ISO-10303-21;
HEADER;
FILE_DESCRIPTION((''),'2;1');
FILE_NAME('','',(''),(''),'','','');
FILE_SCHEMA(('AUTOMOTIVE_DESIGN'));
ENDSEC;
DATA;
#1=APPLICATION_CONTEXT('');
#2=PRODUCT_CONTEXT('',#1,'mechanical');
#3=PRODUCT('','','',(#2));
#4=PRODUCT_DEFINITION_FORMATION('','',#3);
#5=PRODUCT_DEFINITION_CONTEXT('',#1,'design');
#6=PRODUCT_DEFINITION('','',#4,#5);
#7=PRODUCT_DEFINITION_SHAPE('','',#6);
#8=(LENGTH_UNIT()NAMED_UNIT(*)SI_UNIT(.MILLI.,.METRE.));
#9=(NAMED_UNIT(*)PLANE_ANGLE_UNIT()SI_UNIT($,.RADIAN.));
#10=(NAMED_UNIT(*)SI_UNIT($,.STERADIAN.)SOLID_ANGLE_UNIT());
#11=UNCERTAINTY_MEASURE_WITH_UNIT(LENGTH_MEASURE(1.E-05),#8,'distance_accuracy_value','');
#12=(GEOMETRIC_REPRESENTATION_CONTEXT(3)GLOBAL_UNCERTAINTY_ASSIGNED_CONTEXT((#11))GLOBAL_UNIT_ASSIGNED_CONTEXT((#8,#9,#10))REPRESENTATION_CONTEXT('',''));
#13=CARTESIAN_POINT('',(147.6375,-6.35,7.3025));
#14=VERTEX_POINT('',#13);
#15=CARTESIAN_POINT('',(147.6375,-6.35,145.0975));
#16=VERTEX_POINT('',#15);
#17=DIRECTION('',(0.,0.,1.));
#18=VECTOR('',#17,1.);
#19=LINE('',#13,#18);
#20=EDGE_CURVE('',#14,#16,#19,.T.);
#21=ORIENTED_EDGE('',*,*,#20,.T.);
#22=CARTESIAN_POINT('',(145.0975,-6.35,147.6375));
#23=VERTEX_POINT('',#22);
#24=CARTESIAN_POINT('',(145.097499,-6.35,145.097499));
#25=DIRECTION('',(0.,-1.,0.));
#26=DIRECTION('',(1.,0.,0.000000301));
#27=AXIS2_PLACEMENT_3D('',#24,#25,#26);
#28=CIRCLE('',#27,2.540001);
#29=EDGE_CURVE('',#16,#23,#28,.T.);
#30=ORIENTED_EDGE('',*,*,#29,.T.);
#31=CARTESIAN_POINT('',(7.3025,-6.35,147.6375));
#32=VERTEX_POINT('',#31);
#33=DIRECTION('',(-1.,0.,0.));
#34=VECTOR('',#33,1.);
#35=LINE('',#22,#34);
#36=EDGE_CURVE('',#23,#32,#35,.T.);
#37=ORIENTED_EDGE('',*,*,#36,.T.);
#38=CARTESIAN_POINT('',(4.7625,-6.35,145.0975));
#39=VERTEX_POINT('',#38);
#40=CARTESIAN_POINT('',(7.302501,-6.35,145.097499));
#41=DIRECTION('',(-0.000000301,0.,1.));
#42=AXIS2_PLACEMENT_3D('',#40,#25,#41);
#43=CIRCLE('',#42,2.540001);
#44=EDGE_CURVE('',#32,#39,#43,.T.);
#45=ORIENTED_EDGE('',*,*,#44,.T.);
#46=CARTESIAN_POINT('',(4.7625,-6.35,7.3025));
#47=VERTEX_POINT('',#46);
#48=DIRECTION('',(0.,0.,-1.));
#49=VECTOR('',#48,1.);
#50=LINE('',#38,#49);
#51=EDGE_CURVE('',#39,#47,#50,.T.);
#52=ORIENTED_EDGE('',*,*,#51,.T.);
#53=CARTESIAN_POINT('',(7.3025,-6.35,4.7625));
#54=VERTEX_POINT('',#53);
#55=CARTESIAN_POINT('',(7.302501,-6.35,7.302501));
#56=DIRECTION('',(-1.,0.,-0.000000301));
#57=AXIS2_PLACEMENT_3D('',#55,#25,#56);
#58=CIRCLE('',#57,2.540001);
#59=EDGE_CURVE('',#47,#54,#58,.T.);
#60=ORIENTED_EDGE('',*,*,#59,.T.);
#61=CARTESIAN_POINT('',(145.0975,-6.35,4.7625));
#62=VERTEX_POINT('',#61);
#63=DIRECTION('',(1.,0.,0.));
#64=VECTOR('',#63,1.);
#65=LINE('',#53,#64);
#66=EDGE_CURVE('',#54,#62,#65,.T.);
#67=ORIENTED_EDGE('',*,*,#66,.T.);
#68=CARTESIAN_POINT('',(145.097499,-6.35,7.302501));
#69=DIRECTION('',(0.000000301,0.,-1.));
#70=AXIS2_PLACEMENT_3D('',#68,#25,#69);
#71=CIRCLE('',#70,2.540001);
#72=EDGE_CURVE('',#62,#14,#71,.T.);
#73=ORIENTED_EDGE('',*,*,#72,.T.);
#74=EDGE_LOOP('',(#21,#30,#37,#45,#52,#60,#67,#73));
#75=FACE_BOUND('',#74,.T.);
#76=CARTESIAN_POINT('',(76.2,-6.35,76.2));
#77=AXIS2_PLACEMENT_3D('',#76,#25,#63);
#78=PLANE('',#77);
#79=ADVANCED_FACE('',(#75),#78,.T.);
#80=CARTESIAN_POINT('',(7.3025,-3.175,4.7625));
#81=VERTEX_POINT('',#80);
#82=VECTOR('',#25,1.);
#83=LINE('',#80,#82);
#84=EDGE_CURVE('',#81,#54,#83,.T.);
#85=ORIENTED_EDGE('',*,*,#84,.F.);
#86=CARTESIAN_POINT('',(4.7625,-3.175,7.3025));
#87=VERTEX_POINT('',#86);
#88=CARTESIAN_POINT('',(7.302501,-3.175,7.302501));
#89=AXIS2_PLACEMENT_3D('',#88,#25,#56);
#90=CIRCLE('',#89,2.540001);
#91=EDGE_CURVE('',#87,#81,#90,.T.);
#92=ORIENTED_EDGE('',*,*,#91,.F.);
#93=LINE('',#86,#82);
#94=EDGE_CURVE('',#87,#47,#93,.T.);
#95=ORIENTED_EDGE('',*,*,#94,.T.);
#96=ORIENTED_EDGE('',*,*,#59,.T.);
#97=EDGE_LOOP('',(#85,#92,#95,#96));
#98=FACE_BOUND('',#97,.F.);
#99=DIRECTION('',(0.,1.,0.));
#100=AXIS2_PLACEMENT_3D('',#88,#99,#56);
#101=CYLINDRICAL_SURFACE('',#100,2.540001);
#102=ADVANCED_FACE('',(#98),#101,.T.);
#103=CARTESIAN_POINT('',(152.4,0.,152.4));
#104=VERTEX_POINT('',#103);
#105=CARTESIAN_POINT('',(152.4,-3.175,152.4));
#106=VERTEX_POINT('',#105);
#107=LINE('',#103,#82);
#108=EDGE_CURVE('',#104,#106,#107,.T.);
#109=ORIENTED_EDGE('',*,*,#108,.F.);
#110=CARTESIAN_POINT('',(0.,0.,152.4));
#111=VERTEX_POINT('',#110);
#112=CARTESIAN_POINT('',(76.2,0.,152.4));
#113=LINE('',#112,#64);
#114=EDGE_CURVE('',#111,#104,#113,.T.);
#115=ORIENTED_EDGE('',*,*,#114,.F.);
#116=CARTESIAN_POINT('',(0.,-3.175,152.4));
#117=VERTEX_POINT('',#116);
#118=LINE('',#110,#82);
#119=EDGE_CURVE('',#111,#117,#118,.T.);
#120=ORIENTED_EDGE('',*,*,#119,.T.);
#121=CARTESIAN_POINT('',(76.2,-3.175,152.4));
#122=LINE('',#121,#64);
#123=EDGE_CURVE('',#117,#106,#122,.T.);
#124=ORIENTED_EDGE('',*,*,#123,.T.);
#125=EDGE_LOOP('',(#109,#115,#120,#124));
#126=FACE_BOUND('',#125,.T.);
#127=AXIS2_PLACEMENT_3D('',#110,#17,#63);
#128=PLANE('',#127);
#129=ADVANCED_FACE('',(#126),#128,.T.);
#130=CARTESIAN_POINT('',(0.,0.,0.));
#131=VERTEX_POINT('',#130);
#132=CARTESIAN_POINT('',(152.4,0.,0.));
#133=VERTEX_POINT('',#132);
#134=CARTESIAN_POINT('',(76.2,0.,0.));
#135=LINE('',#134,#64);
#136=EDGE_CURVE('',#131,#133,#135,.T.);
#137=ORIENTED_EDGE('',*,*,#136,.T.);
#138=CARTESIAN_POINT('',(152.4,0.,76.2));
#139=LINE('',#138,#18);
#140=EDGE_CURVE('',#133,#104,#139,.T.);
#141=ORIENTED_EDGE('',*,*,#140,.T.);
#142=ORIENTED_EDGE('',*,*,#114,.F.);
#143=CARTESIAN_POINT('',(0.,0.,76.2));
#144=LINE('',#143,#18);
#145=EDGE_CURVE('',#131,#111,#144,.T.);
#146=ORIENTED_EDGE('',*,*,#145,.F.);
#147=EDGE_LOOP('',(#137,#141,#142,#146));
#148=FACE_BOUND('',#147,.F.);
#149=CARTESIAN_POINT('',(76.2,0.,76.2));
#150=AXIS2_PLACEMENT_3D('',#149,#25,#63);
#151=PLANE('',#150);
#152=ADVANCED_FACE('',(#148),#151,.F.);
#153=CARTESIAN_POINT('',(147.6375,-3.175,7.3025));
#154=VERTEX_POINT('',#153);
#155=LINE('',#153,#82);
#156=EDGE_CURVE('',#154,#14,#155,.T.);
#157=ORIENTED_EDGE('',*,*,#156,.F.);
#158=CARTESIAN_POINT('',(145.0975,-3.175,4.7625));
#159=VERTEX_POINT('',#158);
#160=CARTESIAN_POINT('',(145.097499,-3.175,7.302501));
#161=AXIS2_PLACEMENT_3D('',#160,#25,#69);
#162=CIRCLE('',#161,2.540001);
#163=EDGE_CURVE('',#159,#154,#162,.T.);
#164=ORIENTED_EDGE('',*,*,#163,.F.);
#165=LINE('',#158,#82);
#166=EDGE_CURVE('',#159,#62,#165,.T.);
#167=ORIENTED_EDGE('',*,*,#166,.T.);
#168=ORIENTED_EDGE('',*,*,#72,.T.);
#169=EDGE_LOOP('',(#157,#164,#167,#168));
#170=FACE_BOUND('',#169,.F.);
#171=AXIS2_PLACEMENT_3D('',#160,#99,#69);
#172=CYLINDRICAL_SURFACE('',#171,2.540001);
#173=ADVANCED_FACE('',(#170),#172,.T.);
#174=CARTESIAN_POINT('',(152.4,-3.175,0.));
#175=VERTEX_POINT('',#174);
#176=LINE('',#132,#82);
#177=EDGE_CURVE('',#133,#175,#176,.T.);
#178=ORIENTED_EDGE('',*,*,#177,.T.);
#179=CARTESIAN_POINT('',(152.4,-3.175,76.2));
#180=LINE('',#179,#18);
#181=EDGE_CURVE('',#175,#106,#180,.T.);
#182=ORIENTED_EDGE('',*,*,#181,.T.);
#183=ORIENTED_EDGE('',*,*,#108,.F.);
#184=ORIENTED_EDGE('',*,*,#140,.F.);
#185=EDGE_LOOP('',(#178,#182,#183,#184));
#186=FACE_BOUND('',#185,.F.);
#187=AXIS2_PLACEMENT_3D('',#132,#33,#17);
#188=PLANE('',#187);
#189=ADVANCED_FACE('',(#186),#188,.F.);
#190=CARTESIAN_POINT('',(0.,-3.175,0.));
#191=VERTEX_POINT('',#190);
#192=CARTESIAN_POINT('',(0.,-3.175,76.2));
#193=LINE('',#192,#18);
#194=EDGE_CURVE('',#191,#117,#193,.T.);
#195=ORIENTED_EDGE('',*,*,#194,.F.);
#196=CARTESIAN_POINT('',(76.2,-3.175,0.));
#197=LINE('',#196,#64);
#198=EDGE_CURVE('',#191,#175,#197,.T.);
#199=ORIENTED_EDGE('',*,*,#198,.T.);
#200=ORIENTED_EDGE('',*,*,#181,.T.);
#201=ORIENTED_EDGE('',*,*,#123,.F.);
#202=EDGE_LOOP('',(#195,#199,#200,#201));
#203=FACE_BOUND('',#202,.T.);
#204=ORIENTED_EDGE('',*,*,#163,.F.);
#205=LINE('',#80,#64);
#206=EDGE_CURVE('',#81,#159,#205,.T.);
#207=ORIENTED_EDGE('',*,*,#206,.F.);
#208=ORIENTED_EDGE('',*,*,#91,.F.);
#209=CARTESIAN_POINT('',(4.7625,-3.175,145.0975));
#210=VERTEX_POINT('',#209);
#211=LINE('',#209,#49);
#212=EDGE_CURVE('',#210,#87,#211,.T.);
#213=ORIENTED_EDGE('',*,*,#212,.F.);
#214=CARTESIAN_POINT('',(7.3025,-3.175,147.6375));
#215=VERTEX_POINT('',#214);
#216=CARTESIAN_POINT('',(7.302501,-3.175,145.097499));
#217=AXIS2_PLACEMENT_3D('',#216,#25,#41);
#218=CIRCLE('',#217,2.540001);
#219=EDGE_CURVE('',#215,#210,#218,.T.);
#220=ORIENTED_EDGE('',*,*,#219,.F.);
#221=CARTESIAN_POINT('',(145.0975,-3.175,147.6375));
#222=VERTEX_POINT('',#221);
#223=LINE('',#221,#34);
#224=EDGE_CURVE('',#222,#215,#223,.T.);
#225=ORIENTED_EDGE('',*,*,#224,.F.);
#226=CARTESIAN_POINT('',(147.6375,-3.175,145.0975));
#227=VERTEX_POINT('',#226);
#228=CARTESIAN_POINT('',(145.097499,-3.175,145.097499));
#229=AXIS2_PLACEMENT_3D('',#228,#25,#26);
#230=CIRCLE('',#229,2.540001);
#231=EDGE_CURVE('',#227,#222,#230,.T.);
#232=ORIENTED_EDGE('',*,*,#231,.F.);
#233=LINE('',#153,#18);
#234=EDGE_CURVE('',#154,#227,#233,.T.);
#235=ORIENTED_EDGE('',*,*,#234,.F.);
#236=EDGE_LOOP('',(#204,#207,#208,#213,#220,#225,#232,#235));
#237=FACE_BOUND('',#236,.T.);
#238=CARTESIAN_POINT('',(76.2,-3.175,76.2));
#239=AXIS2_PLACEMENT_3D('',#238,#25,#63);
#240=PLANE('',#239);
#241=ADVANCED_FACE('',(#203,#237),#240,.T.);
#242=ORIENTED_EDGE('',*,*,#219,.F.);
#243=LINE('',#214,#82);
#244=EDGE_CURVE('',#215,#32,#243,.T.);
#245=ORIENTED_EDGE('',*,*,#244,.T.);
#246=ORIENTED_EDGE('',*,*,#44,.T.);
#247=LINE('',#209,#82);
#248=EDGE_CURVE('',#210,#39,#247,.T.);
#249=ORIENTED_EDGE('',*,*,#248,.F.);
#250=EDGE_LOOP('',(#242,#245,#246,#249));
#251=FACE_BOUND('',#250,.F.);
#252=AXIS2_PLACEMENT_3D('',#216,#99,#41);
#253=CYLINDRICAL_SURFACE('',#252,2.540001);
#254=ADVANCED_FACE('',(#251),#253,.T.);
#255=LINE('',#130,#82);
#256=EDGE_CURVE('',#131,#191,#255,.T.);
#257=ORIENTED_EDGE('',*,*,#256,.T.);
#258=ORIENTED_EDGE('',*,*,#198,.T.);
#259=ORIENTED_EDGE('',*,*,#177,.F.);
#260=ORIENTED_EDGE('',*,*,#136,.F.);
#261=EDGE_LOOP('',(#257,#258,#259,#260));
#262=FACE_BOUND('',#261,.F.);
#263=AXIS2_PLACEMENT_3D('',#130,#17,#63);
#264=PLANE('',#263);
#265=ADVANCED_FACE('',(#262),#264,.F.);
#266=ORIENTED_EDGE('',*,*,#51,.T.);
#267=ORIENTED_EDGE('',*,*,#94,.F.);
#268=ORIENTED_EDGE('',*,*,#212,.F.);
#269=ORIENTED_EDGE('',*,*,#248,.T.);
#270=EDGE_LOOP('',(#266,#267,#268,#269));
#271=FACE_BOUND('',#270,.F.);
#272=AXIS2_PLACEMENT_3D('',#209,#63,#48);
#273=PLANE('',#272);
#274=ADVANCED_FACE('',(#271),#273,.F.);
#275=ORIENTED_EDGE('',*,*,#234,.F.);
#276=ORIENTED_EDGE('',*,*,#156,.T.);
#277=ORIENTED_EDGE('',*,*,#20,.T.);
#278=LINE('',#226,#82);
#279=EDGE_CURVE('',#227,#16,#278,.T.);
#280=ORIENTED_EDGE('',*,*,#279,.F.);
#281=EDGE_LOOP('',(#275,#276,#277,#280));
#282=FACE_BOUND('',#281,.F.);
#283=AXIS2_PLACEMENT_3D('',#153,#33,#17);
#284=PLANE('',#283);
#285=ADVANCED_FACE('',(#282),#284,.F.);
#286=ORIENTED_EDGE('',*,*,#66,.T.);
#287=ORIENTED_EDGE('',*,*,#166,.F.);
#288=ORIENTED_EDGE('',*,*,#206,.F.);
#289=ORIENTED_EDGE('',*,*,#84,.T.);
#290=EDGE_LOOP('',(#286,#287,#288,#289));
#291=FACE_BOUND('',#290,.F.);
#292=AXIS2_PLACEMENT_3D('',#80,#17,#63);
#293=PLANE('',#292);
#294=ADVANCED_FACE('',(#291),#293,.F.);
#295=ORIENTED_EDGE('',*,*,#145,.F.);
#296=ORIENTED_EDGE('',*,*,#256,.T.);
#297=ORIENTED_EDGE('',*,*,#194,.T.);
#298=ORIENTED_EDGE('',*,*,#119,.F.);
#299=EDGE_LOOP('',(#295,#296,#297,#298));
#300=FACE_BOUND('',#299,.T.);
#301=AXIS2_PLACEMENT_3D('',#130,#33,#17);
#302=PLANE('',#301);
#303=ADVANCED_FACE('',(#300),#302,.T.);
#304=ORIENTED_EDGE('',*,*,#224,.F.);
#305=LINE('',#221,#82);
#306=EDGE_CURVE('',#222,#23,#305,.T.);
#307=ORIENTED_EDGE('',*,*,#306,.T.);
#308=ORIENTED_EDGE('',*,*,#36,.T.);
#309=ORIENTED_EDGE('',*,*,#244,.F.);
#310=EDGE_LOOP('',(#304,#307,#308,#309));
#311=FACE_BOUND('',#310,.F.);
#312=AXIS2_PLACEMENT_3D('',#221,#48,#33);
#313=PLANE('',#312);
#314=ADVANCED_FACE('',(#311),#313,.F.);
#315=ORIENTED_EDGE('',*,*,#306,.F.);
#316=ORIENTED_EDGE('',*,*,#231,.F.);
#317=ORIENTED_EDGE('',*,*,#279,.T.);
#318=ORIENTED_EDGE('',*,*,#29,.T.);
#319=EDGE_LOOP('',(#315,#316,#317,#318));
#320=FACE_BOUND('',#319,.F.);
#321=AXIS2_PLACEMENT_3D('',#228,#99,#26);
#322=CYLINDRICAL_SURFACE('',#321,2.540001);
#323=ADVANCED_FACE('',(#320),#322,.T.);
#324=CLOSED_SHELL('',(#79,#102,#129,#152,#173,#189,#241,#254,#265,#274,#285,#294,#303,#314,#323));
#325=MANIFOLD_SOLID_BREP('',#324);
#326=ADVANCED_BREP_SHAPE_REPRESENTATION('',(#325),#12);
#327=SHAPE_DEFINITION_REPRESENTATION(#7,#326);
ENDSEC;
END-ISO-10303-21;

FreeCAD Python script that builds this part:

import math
import FreeCAD as App
import Part
import Sketcher
Q = App.Units.Quantity

doc = App.newDocument("Part")
params = doc.addObject("Spreadsheet::Sheet", "Params")
for row, (alias, value) in enumerate([
    ("sketch1_width", "6 in"),
    ("pad1_length", "0.125 in"),
    ("sketch2_radius", "0.1 in"),
    ("sketch2_width", "5.425 in"),
    ("pad2_length", "0.125 in"),
], start=1):
    params.set(f"A{row}", alias)
    params.set(f"B{row}", "=" + value)
    params.setAlias(f"B{row}", alias)

body = doc.addObject("PartDesign::Body", "Body")

sketch1 = body.newObject("Sketcher::SketchObject", "Sketch")
sketch1.AttachmentSupport = (doc.getObject("XZ_Plane"), [""])
sketch1.MapMode = "FlatFace"
sketch1.addGeometry([
    Part.LineSegment(App.Vector(0, 152, 0), App.Vector(0, 0, 0)),
    Part.LineSegment(App.Vector(0, 0, 0), App.Vector(152, 0, 0)),
    Part.LineSegment(App.Vector(152, 0, 0), App.Vector(152, 152, 0)),
    Part.LineSegment(App.Vector(152, 152, 0), App.Vector(0, 152, 0)),
], False)
sketch1.addConstraint([
    Sketcher.Constraint("Coincident", 0, 2, 1, 1),
    Sketcher.Constraint("Coincident", 1, 2, 2, 1),
    Sketcher.Constraint("Coincident", 2, 2, 3, 1),
    Sketcher.Constraint("Coincident", 3, 2, 0, 1),
    Sketcher.Constraint("Vertical", 0),
    Sketcher.Constraint("Horizontal", 1),
    Sketcher.Constraint("Vertical", 2),
    Sketcher.Constraint("Horizontal", 3),
    Sketcher.Constraint("Coincident", 0, 2, -1, 1),
    Sketcher.Constraint("Equal", 3, 0),
    Sketcher.Constraint("DistanceX", 1, 1, 1, 2, Q("6 in")),
])
sketch1.setExpression("Constraints[10]", "Params.sketch1_width")
pad1 = body.newObject("PartDesign::Pad", "Pad")
pad1.Profile = sketch1
pad1.setExpression("Length", "Params.pad1_length")

sketch2 = body.newObject("Sketcher::SketchObject", "Sketch001")
sketch2.AttachmentSupport = (doc.getObject("XZ_Plane"), [""])
sketch2.MapMode = "FlatFace"
sketch2.AttachmentOffset = App.Placement(App.Vector(0, 0, 0.125 * 25.4), App.Rotation())
sketch2.addGeometry([
    Part.LineSegment(App.Vector(145.1, 147.6, 0), App.Vector(7.3, 147.6, 0)),
    Part.ArcOfCircle(Part.Circle(App.Vector(7.3, 145.1, 0), App.Vector(0, 0, 1), 2.5), math.radians(90), math.radians(180)),
    Part.LineSegment(App.Vector(4.8, 145.1, 0), App.Vector(4.8, 7.3, 0)),
    Part.ArcOfCircle(Part.Circle(App.Vector(7.3, 7.3, 0), App.Vector(0, 0, 1), 2.5), math.radians(-180), math.radians(-90)),
    Part.LineSegment(App.Vector(7.3, 4.8, 0), App.Vector(145.1, 4.8, 0)),
    Part.ArcOfCircle(Part.Circle(App.Vector(145.1, 7.3, 0), App.Vector(0, 0, 1), 2.5), math.radians(-90), math.radians(0)),
    Part.LineSegment(App.Vector(147.6, 7.3, 0), App.Vector(147.6, 145.1, 0)),
    Part.ArcOfCircle(Part.Circle(App.Vector(145.1, 145.1, 0), App.Vector(0, 0, 1), 2.5), math.radians(0), math.radians(90)),
], False)
sketch2.addConstraint([
    Sketcher.Constraint("Tangent", 0, 2, 1, 1),
    Sketcher.Constraint("Tangent", 1, 2, 2, 1),
    Sketcher.Constraint("Tangent", 2, 2, 3, 1),
    Sketcher.Constraint("Tangent", 3, 2, 4, 1),
    Sketcher.Constraint("Tangent", 4, 2, 5, 1),
    Sketcher.Constraint("Tangent", 5, 2, 6, 1),
    Sketcher.Constraint("Tangent", 6, 2, 7, 1),
    Sketcher.Constraint("Tangent", 7, 2, 0, 1),
    Sketcher.Constraint("Horizontal", 0),
    Sketcher.Constraint("Vertical", 2),
    Sketcher.Constraint("Horizontal", 4),
    Sketcher.Constraint("Vertical", 6),
    Sketcher.Constraint("Equal", 1, 3),
    Sketcher.Constraint("Equal", 3, 5),
    Sketcher.Constraint("Equal", 5, 7),
    Sketcher.Constraint("Equal", 4, 2),
    Sketcher.Constraint("Radius", 1, Q("0.1 in")),
    Sketcher.Constraint("DistanceX", 0, 2, 0, 1, Q("5.425 in")),
    Sketcher.Constraint("DistanceY", -1, 1, 0, 2, Q("5.8125 in")),
    Sketcher.Constraint("DistanceX", -1, 1, 1, 2, Q("0.1875 in")),
])
sketch2.setExpression("Constraints[16]", "Params.sketch2_radius")
sketch2.setExpression("Constraints[17]", "Params.sketch2_width")
pad2 = body.newObject("PartDesign::Pad", "Pad001")
pad2.Profile = sketch2
pad2.setExpression("Length", "Params.pad2_length")

doc.recompute()
